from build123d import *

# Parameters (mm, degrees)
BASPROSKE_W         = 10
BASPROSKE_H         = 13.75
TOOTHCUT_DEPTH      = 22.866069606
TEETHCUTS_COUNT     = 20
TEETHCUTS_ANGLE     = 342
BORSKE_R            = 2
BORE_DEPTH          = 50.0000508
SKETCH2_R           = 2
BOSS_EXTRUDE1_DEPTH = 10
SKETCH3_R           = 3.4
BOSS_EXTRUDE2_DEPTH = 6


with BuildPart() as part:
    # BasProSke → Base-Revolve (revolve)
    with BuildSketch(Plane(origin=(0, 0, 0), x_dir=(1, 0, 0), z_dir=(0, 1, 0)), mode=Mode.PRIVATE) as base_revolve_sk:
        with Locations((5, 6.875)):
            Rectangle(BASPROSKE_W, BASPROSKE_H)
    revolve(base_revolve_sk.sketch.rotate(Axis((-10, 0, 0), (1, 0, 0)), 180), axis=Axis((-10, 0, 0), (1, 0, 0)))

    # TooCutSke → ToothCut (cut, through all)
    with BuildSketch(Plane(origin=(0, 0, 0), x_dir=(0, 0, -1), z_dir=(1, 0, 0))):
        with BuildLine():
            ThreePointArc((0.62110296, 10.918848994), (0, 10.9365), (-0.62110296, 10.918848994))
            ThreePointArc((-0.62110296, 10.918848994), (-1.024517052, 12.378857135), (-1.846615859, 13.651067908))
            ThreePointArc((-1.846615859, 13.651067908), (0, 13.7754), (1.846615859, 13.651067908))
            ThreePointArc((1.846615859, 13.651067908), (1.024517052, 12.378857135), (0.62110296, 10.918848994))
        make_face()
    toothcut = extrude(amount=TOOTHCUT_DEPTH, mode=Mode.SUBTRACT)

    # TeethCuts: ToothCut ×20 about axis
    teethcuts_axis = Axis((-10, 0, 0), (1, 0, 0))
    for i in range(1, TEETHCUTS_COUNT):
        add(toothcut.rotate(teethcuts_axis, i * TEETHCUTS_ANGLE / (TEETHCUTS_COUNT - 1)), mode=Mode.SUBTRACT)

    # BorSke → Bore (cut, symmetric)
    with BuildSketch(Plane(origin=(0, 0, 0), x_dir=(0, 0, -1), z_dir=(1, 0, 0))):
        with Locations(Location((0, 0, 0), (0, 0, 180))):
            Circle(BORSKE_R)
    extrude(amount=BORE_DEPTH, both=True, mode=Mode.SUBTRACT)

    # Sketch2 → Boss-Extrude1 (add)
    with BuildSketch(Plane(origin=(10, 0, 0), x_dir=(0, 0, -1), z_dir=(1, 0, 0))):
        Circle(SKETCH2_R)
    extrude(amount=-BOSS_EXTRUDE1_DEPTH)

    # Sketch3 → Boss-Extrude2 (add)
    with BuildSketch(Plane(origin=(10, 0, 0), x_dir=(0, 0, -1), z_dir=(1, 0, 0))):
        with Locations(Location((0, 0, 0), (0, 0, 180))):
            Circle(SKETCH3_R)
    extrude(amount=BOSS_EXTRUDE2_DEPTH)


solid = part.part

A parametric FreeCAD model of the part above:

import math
import FreeCAD as App
import Part
import Sketcher
from FreeCAD import Vector

doc = App.newDocument("Part")
params = doc.addObject("Spreadsheet::Sheet", "Params")
for row, (alias, value) in enumerate([
    ("sketch1_width", "10 mm"),
    ("sketch1_height", "13.75 mm"),
    ("revolution_angle", "360 deg"),
    ("sketch2_radius", "5 mm"),
    ("sketch3_diameter", "4 mm"),
    ("pocket2_length", "100.000102 mm"),
    ("sketch4_diameter", "4 mm"),
    ("pad1_length", "10 mm"),
    ("sketch5_diameter", "6.8 mm"),
    ("pad2_length", "6 mm"),
], start=1):
    params.set(f"A{row}", alias)
    params.set(f"B{row}", "=" + value)
    params.setAlias(f"B{row}", alias)

body = doc.addObject("PartDesign::Body", "Body")

sketch1 = doc.addObject("Sketcher::SketchObject", "Sketch")
body.addObject(sketch1)
sketch1.AttachmentSupport = (doc.XZ_Plane, [""])
sketch1.MapMode = "FlatFace"
sketch1.addGeometry([
    Part.LineSegment(Vector(0, -13.75, 0), Vector(0, 0, 0)),
    Part.LineSegment(Vector(0, 0, 0), Vector(10, 0, 0)),
    Part.LineSegment(Vector(10, 0, 0), Vector(10, -13.75, 0)),
    Part.LineSegment(Vector(10, -13.75, 0), Vector(0, -13.75, 0)),
], False)
sketch1.addConstraint([
    Sketcher.Constraint("Coincident", 0, 2, 1, 1),
    Sketcher.Constraint("Coincident", 1, 2, 2, 1),
    Sketcher.Constraint("Coincident", 2, 2, 3, 1),
    Sketcher.Constraint("Coincident", 3, 2, 0, 1),
    Sketcher.Constraint("Vertical", 0),
    Sketcher.Constraint("Horizontal", 1),
    Sketcher.Constraint("Vertical", 2),
    Sketcher.Constraint("Horizontal", 3),
    Sketcher.Constraint("Coincident", 0, 2, -1, 1),
    Sketcher.Constraint("DistanceX", 1, 1, 1, 2, 10.0),
    Sketcher.Constraint("DistanceY", 0, 1, 0, 2, 13.75),
])
sketch1.setExpression("Constraints[9]", "Params.sketch1_width")
sketch1.setExpression("Constraints[10]", "Params.sketch1_height")
revolution = doc.addObject("PartDesign::Revolution", "Revolution")
body.addObject(revolution)
revolution.Profile = sketch1
revolution.ReferenceAxis = (sketch1, ["H_Axis"])
revolution.setExpression("Angle", "Params.revolution_angle")

sketch2 = doc.addObject("Sketcher::SketchObject", "Sketch001")
body.addObject(sketch2)
sketch2.AttachmentSupport = (doc.YZ_Plane, [""])
sketch2.MapMode = "FlatFace"
sketch2.addGeometry([
    Part.ArcOfCircle(Part.Circle(Vector(0, 0, 0), Vector(0, 0, 1), 10.9365), math.radians(-3.255679), math.radians(3.255679)),
    Part.ArcOfCircle(Part.Circle(Vector(10.33257, -5.586612, 0), Vector(0, 0, 1), 5), math.radians(48.417354), math.radians(83.266241)),
    Part.ArcOfCircle(Part.Circle(Vector(0, 0, 0), Vector(0, 0, 1), 13.7754), math.radians(-7.703788), math.radians(7.703788)),
    Part.ArcOfCircle(Part.Circle(Vector(10.33257, 5.586612, 0), Vector(0, 0, 1), 5), math.radians(-83.266241), math.radians(-48.417354)),
], False)
sketch2.addConstraint([
    Sketcher.Constraint("Coincident", 0, 1, 1, 2),
    Sketcher.Constraint("Coincident", 1, 1, 2, 1),
    Sketcher.Constraint("Coincident", 2, 2, 3, 2),
    Sketcher.Constraint("Coincident", 3, 1, 0, 2),
    Sketcher.Constraint("Coincident", 0, 3, -1, 1),
    Sketcher.Constraint("Coincident", 2, 3, -1, 1),
    Sketcher.Constraint("Equal", 1, 3),
    Sketcher.Constraint("Symmetric", 1, 3, 3, 3, -1),
    Sketcher.Constraint("Radius", 1, 5.0),
    Sketcher.Constraint("Radius", 0, 10.9365),
    Sketcher.Constraint("Radius", 2, 13.7754),
    Sketcher.Constraint("DistanceX", 1, 3, 1, 1, 3.318498),
    Sketcher.Constraint("DistanceX", -1, 1, 1, 3, 10.33257),
])
sketch2.setExpression("Constraints[8]", "Params.sketch2_radius")
pocket1 = doc.addObject("PartDesign::Pocket", "Pocket")
body.addObject(pocket1)
pocket1.Profile = sketch2
pocket1.Type = "ThroughAll"
pocket1.Reversed = True
doc.recompute()

polarpattern = doc.addObject("PartDesign::PolarPattern", "PolarPattern")
body.addObject(polarpattern)
polarpattern.Originals = [pocket1]
polarpattern.Axis = (doc.X_Axis, [""])
polarpattern.Angle = 360
polarpattern.Occurrences = 20
body.Tip = polarpattern

sketch3 = doc.addObject("Sketcher::SketchObject", "Sketch002")
body.addObject(sketch3)
sketch3.AttachmentSupport = (doc.YZ_Plane, [""])
sketch3.MapMode = "FlatFace"
sketch3.addGeometry(Part.Circle(Vector(0, 0, 0), Vector(0, 0, 1), 2), False)
sketch3.addConstraint([
    Sketcher.Constraint("Coincident", 0, 3, -1, 1),
    Sketcher.Constraint("Diameter", 0, 4.0),
])
sketch3.setExpression("Constraints[1]", "Params.sketch3_diameter")
pocket2 = doc.addObject("PartDesign::Pocket", "Pocket001")
body.addObject(pocket2)
pocket2.Profile = sketch3
pocket2.setExpression("Length", "Params.pocket2_length")
pocket2.Midplane = True

sketch4 = doc.addObject("Sketcher::SketchObject", "Sketch003")
body.addObject(sketch4)
sketch4.AttachmentSupport = (doc.YZ_Plane, [""])
sketch4.MapMode = "FlatFace"
sketch4.AttachmentOffset = App.Placement(Vector(0, 0, 10), App.Rotation())
sketch4.addGeometry(Part.Circle(Vector(0, 0, 0), Vector(0, 0, 1), 2), False)
sketch4.addConstraint([
    Sketcher.Constraint("Coincident", 0, 3, -1, 1),
    Sketcher.Constraint("Diameter", 0, 4.0),
])
sketch4.setExpression("Constraints[1]", "Params.sketch4_diameter")
pad1 = doc.addObject("PartDesign::Pad", "Pad")
body.addObject(pad1)
pad1.Profile = sketch4
pad1.setExpression("Length", "Params.pad1_length")
pad1.Reversed = True

sketch5 = doc.addObject("Sketcher::SketchObject", "Sketch004")
body.addObject(sketch5)
sketch5.AttachmentSupport = (doc.YZ_Plane, [""])
sketch5.MapMode = "FlatFace"
sketch5.AttachmentOffset = App.Placement(Vector(0, 0, 10), App.Rotation())
sketch5.addGeometry(Part.Circle(Vector(0, 0, 0), Vector(0, 0, 1), 3.4), False)
sketch5.addConstraint([
    Sketcher.Constraint("Coincident", 0, 3, -1, 1),
    Sketcher.Constraint("Diameter", 0, 6.8),
])
sketch5.setExpression("Constraints[1]", "Params.sketch5_diameter")
pad2 = doc.addObject("PartDesign::Pad", "Pad001")
body.addObject(pad2)
pad2.Profile = sketch5
pad2.setExpression("Length", "Params.pad2_length")

doc.recompute()
